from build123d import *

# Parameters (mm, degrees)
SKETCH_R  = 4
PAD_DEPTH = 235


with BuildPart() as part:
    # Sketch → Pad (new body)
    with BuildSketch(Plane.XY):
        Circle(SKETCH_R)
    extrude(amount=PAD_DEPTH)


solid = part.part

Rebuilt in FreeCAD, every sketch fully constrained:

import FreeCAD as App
import Part
import Sketcher

V = App.Vector
Q = App.Units.Quantity

doc = App.newDocument("Part")
body = doc.addObject("PartDesign::Body", "Body")

# Sketch on XY plane
sketch1 = body.newObject("Sketcher::SketchObject", "Sketch")
sketch1.AttachmentSupport = (doc.getObject("XY_Plane"), [""])
sketch1.MapMode = "FlatFace"
sketch1.addGeometry(Part.Circle(V(0, 0, 0), V(0, 0, 1), 4), False)
sketch1.addConstraint([
    Sketcher.Constraint("Coincident", 0, 3, -1, 1),
    Sketcher.Constraint("Diameter", 0, Q("8 mm")),
])
pad1 = body.newObject("PartDesign::Pad", "Pad")
pad1.Profile = sketch1
pad1.Length = 235

doc.recompute()
